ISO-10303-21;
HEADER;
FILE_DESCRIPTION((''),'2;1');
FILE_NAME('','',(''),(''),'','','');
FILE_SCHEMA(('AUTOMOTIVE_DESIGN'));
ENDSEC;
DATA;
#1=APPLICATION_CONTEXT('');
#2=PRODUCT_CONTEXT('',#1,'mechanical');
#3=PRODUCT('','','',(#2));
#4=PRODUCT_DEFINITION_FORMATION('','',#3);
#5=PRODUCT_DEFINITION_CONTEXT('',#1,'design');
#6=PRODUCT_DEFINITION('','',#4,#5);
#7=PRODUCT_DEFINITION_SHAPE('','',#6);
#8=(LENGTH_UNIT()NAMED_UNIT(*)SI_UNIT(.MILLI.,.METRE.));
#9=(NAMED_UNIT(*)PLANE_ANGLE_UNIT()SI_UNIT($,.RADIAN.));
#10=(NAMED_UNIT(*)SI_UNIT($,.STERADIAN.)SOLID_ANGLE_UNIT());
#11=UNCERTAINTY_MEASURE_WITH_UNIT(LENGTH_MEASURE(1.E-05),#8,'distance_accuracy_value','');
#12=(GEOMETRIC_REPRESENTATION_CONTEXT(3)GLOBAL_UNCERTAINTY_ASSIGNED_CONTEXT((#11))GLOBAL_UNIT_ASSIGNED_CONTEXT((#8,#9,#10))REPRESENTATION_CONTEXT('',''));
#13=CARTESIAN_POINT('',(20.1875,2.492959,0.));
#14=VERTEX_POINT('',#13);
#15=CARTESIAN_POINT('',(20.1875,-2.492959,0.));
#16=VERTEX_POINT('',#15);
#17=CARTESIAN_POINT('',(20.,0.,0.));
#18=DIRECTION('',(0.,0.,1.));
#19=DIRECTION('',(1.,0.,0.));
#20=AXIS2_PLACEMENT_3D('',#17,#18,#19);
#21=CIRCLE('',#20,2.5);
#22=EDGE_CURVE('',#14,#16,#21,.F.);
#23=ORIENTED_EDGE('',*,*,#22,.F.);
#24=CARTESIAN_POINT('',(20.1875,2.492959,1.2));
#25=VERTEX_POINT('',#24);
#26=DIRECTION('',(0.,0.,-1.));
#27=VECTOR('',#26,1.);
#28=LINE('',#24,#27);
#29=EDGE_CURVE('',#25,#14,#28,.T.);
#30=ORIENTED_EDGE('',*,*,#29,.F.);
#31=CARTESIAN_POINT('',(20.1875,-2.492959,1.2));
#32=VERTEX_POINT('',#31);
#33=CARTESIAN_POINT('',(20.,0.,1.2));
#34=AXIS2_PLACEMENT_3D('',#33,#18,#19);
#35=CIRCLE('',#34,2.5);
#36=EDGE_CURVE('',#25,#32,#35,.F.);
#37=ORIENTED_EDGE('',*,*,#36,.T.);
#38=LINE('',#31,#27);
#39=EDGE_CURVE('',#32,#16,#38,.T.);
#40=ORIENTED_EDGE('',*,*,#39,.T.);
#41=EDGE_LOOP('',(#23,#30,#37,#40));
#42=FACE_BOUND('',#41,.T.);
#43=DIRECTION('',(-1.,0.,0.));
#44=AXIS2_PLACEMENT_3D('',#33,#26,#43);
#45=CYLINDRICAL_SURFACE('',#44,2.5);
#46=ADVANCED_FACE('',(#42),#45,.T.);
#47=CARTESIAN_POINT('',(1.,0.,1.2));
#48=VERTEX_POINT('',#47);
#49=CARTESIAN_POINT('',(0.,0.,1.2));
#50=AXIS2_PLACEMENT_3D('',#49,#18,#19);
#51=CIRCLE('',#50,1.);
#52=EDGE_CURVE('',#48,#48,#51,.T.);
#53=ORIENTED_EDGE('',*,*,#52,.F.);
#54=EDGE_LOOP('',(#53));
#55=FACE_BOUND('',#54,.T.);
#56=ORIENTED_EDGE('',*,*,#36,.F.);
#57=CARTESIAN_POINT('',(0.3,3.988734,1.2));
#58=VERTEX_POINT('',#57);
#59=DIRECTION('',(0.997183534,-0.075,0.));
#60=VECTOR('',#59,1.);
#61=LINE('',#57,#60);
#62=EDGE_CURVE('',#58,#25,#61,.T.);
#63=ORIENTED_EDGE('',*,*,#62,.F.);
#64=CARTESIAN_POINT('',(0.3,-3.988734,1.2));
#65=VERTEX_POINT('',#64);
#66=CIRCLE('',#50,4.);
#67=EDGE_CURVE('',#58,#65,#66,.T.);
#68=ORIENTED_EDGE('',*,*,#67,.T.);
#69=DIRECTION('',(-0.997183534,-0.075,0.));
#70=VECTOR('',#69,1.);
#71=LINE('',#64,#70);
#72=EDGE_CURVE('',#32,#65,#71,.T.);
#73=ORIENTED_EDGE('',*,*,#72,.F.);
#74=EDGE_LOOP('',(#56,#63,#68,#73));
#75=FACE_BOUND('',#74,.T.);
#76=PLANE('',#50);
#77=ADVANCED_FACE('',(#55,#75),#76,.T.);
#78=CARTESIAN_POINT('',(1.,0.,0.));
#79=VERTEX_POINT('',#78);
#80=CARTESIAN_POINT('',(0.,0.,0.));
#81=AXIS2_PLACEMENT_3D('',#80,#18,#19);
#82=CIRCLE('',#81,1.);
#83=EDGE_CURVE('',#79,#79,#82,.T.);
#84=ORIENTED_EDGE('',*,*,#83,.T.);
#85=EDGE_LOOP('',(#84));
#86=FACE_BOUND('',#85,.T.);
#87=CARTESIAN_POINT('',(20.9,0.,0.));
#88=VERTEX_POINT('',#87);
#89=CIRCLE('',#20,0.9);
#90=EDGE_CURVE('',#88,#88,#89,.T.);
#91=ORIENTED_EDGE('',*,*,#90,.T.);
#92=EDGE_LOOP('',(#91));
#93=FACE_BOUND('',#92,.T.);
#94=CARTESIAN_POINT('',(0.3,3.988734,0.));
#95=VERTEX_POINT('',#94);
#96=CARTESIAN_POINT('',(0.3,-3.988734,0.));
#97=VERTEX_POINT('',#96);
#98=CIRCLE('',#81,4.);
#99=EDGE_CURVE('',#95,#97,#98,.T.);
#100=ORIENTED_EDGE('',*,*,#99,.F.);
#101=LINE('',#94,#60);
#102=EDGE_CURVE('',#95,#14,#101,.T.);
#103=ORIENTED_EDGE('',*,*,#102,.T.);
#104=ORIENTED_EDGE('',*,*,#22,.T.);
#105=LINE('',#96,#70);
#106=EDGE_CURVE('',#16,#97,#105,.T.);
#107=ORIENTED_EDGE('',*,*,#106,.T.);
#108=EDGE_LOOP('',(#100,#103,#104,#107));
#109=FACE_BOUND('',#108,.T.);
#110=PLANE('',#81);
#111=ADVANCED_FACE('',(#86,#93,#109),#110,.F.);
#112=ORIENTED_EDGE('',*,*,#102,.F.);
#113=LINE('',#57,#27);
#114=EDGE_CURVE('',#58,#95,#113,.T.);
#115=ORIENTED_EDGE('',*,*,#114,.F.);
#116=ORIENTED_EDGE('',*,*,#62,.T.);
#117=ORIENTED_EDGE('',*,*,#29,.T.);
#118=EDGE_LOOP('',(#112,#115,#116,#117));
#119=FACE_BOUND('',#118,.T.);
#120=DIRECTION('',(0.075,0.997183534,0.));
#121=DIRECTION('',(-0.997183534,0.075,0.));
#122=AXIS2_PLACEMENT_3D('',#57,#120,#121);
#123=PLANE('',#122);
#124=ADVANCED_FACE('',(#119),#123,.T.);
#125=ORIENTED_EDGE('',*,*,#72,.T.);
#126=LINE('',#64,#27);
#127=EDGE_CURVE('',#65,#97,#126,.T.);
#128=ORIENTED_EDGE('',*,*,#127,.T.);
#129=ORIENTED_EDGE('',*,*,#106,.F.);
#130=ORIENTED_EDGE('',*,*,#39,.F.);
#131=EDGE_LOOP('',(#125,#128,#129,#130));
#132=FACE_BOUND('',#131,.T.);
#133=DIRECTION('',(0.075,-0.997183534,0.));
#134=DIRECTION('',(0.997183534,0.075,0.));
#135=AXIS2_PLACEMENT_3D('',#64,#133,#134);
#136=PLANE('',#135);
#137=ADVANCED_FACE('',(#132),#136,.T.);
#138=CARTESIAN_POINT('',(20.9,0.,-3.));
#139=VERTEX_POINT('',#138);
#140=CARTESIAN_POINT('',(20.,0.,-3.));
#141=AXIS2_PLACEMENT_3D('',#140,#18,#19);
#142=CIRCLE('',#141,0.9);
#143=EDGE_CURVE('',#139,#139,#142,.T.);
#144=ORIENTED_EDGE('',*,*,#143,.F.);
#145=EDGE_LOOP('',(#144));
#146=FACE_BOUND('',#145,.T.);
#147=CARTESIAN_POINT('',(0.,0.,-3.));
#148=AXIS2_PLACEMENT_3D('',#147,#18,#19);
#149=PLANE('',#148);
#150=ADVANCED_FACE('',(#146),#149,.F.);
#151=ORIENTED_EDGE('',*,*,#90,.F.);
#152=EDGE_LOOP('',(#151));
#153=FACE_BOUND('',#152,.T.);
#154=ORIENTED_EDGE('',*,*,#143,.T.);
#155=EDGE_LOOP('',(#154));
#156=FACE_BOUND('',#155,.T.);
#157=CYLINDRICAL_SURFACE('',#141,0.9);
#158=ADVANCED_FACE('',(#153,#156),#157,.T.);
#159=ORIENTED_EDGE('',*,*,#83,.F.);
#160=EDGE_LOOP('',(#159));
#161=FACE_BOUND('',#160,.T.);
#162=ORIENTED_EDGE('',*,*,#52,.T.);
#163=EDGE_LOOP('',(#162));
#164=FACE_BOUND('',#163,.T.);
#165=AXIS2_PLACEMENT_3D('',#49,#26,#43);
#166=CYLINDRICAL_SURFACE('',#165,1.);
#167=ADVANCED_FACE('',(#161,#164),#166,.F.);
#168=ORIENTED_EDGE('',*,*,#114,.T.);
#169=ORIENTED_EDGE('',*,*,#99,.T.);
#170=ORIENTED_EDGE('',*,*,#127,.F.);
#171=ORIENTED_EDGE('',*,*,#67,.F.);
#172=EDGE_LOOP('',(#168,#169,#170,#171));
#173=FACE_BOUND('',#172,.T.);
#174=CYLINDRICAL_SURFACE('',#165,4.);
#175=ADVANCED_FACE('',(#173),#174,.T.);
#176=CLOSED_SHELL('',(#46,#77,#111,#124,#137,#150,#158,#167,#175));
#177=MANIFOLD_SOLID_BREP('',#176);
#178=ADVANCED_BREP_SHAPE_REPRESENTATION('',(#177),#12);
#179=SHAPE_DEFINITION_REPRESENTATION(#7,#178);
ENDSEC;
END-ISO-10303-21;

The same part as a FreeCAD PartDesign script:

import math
import FreeCAD as App
import Part
import Sketcher

V = App.Vector
Q = App.Units.Quantity

doc = App.newDocument("Part")
body = doc.addObject("PartDesign::Body", "Body")

# Sketch on XY plane
sketch1 = body.newObject("Sketcher::SketchObject", "Sketch")
sketch1.AttachmentSupport = (doc.getObject("XY_Plane"), [""])
sketch1.MapMode = "FlatFace"
sketch1.addGeometry(Part.LineSegment(V(20.2, 2.5, 0), V(0.3, 4, 0)), False)
sketch1.addGeometry(Part.ArcOfCircle(Part.Circle(V(0, 0, 0), V(0, 0, 1), 4), math.radians(86), math.radians(274)), False)
sketch1.addGeometry(Part.LineSegment(V(0.3, -4, 0), V(20.2, -2.5, 0)), False)
sketch1.addGeometry(Part.ArcOfCircle(Part.Circle(V(20, 0, 0), V(0, 0, 1), 2.5), math.radians(-86), math.radians(86)), False)
sketch1.addGeometry(Part.Circle(V(0, 0, 0), V(0, 0, 1), 1), False)
sketch1.addConstraint(Sketcher.Constraint("Tangent", 0, 2, 1, 1))
sketch1.addConstraint(Sketcher.Constraint("Tangent", 1, 2, 2, 1))
sketch1.addConstraint(Sketcher.Constraint("Tangent", 2, 2, 3, 1))
sketch1.addConstraint(Sketcher.Constraint("Tangent", 3, 2, 0, 1))
sketch1.addConstraint(Sketcher.Constraint("Coincident", 1, 3, -1, 1))
sketch1.addConstraint(Sketcher.Constraint("Coincident", 4, 3, -1, 1))
sketch1.addConstraint(Sketcher.Constraint("PointOnObject", 3, 3, -1))
sketch1.addConstraint(Sketcher.Constraint("Diameter", 4, Q("2 mm")))
sketch1.addConstraint(Sketcher.Constraint("Radius", 1, Q("4 mm")))
sketch1.addConstraint(Sketcher.Constraint("Radius", 3, Q("2.5 mm")))
sketch1.addConstraint(Sketcher.Constraint("DistanceX", -1, 1, 3, 3, Q("20 mm")))
pad1 = body.newObject("PartDesign::Pad", "Pad")
pad1.Profile = sketch1
pad1.Length = 1.2

# Sketch on XY plane
sketch2 = body.newObject("Sketcher::SketchObject", "Sketch001")
sketch2.AttachmentSupport = (doc.getObject("XY_Plane"), [""])
sketch2.MapMode = "FlatFace"
sketch2.AttachmentOffset = App.Placement(V(0, 0, -3), App.Rotation())
sketch2.addGeometry(Part.Circle(V(20, 0, 0), V(0, 0, 1), 0.9), False)
sketch2.addConstraint(Sketcher.Constraint("PointOnObject", 0, 3, -1))
sketch2.addConstraint(Sketcher.Constraint("Diameter", 0, Q("1.8 mm")))
sketch2.addConstraint(Sketcher.Constraint("DistanceX", -1, 1, 0, 3, Q("20 mm")))
pad2 = body.newObject("PartDesign::Pad", "Pad001")
pad2.Profile = sketch2
pad2.Length = 3

doc.recompute()
